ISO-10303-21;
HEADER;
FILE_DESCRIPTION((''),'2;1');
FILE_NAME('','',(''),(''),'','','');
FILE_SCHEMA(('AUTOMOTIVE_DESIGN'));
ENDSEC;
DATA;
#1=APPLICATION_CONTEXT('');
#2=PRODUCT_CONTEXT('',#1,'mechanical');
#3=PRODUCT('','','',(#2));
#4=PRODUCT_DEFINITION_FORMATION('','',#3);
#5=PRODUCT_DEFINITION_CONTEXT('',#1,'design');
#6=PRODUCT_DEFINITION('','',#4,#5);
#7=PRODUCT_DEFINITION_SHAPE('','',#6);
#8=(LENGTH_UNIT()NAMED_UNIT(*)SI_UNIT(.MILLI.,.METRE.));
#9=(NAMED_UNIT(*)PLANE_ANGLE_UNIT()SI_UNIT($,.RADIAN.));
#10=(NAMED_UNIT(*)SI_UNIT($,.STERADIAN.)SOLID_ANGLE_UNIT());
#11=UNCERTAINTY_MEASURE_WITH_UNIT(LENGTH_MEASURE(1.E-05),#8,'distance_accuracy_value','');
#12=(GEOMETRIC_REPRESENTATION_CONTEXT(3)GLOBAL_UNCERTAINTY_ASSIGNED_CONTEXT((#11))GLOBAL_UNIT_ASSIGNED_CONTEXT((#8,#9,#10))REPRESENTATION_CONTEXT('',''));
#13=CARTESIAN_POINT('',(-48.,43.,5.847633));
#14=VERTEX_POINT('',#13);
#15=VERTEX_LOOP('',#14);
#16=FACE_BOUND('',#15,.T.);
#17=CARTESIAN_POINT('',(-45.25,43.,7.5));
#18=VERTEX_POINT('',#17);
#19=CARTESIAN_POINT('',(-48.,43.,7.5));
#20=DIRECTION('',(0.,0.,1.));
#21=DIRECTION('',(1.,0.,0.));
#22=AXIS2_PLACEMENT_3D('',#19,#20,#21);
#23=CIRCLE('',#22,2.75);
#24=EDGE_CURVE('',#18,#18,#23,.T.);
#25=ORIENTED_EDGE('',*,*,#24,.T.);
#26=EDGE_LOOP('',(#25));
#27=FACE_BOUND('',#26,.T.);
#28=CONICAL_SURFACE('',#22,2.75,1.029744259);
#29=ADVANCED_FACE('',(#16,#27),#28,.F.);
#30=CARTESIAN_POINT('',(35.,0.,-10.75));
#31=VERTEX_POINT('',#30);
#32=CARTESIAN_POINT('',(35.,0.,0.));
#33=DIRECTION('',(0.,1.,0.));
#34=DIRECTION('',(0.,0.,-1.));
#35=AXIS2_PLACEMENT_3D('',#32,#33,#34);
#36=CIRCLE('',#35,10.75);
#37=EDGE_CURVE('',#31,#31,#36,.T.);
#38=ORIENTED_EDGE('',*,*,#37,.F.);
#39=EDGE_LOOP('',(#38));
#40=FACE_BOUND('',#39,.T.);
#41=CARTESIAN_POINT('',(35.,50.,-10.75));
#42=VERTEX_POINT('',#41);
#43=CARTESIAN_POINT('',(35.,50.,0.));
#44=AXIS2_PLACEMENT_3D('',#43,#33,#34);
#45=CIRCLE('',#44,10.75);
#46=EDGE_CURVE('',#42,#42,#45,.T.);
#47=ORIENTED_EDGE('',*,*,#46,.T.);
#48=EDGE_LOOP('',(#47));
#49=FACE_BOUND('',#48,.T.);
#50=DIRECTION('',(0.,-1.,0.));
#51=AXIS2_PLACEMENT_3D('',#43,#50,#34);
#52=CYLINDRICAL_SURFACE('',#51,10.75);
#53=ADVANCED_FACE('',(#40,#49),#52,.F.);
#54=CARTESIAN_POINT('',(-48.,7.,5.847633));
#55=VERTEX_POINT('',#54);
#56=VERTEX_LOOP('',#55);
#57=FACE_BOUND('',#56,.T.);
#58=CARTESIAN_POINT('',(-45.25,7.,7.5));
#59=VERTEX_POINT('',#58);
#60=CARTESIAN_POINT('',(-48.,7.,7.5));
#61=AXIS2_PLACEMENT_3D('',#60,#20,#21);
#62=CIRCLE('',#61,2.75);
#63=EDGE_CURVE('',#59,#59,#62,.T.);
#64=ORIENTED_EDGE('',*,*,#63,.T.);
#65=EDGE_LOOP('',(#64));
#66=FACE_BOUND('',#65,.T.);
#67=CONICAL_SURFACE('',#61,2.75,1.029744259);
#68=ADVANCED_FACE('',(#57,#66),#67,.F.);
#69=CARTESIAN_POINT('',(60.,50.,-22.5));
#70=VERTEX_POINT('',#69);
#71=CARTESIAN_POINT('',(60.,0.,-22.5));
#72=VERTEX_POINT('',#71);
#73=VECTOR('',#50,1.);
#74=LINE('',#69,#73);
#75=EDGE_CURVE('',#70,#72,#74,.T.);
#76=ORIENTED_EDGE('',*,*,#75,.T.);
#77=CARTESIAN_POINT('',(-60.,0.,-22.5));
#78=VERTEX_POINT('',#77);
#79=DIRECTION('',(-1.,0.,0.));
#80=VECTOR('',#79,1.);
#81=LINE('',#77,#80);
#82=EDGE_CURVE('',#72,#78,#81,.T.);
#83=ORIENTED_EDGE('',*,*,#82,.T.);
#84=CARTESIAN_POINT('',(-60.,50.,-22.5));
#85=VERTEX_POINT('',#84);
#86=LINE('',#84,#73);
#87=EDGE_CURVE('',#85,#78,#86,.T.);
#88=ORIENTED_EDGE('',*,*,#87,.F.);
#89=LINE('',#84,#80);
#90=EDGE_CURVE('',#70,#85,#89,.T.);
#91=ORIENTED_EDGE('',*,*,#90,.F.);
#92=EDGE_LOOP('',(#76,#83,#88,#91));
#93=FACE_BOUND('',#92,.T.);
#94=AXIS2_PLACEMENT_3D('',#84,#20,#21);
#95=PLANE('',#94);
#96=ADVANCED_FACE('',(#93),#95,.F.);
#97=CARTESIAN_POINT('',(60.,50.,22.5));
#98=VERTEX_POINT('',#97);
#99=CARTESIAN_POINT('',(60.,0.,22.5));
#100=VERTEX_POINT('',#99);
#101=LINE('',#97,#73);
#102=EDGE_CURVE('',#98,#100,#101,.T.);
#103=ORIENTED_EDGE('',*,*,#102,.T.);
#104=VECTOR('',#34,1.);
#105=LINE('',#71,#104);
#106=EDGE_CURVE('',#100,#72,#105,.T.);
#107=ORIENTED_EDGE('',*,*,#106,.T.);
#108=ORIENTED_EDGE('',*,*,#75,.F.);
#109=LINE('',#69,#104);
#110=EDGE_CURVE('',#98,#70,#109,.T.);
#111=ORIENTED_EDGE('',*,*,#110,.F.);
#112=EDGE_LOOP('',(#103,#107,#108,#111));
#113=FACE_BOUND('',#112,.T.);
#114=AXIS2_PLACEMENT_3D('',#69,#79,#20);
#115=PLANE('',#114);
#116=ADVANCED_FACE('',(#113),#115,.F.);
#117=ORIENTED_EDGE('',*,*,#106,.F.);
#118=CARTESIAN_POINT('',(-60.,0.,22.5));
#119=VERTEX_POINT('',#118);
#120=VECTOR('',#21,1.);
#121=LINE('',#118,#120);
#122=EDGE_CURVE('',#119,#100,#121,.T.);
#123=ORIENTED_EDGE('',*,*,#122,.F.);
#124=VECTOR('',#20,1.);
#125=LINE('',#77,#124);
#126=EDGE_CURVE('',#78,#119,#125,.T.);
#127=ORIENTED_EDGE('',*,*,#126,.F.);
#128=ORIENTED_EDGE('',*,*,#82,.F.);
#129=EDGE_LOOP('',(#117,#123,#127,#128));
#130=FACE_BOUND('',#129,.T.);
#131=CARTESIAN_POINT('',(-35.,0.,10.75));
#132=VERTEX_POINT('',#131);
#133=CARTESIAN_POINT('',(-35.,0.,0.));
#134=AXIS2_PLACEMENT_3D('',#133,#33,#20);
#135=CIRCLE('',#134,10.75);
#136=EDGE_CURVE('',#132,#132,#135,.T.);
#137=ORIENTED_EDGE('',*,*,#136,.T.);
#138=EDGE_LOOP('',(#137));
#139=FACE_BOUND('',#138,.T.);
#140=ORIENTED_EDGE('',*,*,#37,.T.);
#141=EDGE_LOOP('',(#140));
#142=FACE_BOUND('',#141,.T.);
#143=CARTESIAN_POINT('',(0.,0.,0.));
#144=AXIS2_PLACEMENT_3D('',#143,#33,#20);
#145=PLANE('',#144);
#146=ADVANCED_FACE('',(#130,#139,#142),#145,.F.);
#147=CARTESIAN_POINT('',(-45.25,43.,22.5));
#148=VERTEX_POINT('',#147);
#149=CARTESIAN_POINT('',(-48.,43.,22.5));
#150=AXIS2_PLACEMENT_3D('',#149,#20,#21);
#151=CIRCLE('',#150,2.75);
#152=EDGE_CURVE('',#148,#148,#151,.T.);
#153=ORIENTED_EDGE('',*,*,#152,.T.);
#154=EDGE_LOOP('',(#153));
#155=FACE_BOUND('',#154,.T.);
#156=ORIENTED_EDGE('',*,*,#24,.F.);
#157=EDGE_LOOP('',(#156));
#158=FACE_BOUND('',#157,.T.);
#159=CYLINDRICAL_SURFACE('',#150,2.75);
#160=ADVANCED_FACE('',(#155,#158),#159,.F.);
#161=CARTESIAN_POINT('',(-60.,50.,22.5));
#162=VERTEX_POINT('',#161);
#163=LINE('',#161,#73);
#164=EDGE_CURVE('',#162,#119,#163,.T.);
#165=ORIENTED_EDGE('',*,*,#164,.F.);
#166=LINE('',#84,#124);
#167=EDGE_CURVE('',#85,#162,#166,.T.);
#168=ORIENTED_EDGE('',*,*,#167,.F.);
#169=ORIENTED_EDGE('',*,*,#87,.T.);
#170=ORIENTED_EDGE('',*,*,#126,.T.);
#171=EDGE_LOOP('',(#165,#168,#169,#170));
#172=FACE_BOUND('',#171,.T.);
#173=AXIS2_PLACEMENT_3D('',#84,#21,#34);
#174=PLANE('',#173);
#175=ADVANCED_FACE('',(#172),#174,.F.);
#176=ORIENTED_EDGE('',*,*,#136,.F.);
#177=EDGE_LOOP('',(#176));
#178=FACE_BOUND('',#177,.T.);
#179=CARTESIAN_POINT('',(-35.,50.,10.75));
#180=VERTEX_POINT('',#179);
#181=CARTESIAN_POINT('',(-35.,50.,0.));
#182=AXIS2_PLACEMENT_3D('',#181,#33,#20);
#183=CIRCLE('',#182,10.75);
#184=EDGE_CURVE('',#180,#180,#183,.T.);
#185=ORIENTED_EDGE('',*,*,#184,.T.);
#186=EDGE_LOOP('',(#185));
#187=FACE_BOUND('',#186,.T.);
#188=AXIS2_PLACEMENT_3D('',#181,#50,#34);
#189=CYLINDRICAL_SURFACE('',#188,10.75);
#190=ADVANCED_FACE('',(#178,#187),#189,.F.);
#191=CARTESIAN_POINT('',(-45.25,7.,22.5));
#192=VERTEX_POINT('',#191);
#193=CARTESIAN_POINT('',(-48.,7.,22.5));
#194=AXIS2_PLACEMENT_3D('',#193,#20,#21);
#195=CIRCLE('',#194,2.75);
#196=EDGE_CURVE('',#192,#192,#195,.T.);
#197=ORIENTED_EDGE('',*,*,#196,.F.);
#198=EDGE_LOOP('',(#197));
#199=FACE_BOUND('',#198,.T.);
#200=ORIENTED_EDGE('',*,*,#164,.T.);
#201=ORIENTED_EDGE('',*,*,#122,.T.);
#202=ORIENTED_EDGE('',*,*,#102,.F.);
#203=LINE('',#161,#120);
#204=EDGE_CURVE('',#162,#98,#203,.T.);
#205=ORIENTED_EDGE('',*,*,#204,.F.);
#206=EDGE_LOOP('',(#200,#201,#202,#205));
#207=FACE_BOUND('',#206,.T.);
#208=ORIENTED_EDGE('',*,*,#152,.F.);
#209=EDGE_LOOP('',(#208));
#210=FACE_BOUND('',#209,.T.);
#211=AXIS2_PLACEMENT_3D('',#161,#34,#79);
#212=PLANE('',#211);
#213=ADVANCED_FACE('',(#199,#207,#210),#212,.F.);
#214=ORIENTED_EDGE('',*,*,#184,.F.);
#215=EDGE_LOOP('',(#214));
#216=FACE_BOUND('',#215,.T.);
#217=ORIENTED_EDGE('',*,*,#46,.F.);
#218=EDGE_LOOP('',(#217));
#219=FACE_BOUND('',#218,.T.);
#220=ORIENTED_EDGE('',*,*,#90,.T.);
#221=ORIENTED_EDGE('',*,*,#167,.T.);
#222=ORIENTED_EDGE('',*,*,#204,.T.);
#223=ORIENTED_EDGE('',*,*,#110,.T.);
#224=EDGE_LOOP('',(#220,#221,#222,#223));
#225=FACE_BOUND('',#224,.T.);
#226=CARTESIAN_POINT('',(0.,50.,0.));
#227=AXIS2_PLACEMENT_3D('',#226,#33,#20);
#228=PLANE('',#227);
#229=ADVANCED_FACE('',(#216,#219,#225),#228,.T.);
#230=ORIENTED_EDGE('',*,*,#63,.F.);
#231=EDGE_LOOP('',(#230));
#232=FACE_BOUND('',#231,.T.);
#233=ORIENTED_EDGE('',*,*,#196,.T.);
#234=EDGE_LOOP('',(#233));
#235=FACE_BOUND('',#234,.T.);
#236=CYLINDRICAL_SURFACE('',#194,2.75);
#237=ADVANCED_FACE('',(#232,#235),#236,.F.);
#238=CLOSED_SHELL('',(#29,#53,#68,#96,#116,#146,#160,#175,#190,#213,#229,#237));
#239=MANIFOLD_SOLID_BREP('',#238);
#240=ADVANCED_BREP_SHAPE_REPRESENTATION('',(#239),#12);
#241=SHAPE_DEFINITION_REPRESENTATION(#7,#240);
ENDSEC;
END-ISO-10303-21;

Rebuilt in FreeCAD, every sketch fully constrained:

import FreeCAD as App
import Part
import Sketcher

V = App.Vector
Q = App.Units.Quantity


def add_polygon(sketch, points):
    """Adds a closed chain of lines whose ends are joined by coincident constraints."""
    first, n = sketch.GeometryCount, len(points)
    for a, b in zip(points, points[1:] + points[:1]):
        sketch.addGeometry(Part.LineSegment(App.Vector(*a, 0), App.Vector(*b, 0)), False)
    for i in range(n):
        sketch.addConstraint(Sketcher.Constraint("Coincident", first + i, 2, first + (i + 1) % n, 1))

doc = App.newDocument("Part")
body = doc.addObject("PartDesign::Body", "Body")

sketch1 = body.newObject("Sketcher::SketchObject", "Sketch")
sketch1.AttachmentSupport = (doc.getObject("XZ_Plane"), [""])
sketch1.MapMode = "FlatFace"
add_polygon(sketch1, [(-60, -22.5), (-60, 22.5), (60, 22.5), (60, -22.5)])
sketch1.addGeometry(Part.Circle(V(-35, 0, 0), V(0, 0, 1), 10.75), False)
sketch1.addGeometry(Part.Circle(V(35, 0, 0), V(0, 0, 1), 10.75), False)
sketch1.addConstraint([
    Sketcher.Constraint("Vertical", 0),
    Sketcher.Constraint("Horizontal", 1),
    Sketcher.Constraint("Vertical", 2),
    Sketcher.Constraint("Horizontal", 3),
    Sketcher.Constraint("Equal", 4, 5),
    Sketcher.Constraint("Symmetric", 4, 3, 5, 3, -1, 1),
    Sketcher.Constraint("Symmetric", 0, 2, 2, 2, -1, 1),
    Sketcher.Constraint("PointOnObject", 4, 3, -1),
    Sketcher.Constraint("Diameter", 4, Q("21.5 mm")),
    Sketcher.Constraint("DistanceX", 1, 1, 1, 2, Q("120 mm")),
    Sketcher.Constraint("DistanceY", 0, 1, 0, 2, Q("45 mm")),
    Sketcher.Constraint("DistanceX", 4, 3, -1, 1, Q("35 mm")),
])
pad1 = body.newObject("PartDesign::Pad", "Pad")
pad1.Profile = sketch1
pad1.Length = 50
pad1.Reversed = True

sketch2 = body.newObject("Sketcher::SketchObject", "Sketch001")
sketch2.AttachmentSupport = (doc.getObject("XY_Plane"), [""])
sketch2.MapMode = "FlatFace"
sketch2.AttachmentOffset = App.Placement(V(0, 0, 22.5), App.Rotation())
sketch2.addGeometry([
    Part.Circle(V(-48, 43, 0), V(0, 0, 1), 2.75),
    Part.Circle(V(-48, 7, 0), V(0, 0, 1), 2.75),
], False)
sketch2.addConstraint([
    Sketcher.Constraint("Equal", 0, 1),
    Sketcher.Constraint("Vertical", 0, 3, 1, 3),
    Sketcher.Constraint("Diameter", 0, Q("5.5 mm")),
    Sketcher.Constraint("DistanceX", 0, 3, -1, 1, Q("48 mm")),
    Sketcher.Constraint("DistanceY", -1, 1, 0, 3, Q("43 mm")),
    Sketcher.Constraint("DistanceY", -1, 1, 1, 3, Q("7 mm")),
])
doc.recompute()
hole = body.newObject("PartDesign::Hole", "Hole")
hole.Profile = sketch2
hole.ThreadType = "None"
hole.Diameter = 5.5
hole.DepthType = "Dimension"
hole.Depth = 15
hole.DrillPoint = "Angled"
hole.DrillPointAngle = 118

doc.recompute()
